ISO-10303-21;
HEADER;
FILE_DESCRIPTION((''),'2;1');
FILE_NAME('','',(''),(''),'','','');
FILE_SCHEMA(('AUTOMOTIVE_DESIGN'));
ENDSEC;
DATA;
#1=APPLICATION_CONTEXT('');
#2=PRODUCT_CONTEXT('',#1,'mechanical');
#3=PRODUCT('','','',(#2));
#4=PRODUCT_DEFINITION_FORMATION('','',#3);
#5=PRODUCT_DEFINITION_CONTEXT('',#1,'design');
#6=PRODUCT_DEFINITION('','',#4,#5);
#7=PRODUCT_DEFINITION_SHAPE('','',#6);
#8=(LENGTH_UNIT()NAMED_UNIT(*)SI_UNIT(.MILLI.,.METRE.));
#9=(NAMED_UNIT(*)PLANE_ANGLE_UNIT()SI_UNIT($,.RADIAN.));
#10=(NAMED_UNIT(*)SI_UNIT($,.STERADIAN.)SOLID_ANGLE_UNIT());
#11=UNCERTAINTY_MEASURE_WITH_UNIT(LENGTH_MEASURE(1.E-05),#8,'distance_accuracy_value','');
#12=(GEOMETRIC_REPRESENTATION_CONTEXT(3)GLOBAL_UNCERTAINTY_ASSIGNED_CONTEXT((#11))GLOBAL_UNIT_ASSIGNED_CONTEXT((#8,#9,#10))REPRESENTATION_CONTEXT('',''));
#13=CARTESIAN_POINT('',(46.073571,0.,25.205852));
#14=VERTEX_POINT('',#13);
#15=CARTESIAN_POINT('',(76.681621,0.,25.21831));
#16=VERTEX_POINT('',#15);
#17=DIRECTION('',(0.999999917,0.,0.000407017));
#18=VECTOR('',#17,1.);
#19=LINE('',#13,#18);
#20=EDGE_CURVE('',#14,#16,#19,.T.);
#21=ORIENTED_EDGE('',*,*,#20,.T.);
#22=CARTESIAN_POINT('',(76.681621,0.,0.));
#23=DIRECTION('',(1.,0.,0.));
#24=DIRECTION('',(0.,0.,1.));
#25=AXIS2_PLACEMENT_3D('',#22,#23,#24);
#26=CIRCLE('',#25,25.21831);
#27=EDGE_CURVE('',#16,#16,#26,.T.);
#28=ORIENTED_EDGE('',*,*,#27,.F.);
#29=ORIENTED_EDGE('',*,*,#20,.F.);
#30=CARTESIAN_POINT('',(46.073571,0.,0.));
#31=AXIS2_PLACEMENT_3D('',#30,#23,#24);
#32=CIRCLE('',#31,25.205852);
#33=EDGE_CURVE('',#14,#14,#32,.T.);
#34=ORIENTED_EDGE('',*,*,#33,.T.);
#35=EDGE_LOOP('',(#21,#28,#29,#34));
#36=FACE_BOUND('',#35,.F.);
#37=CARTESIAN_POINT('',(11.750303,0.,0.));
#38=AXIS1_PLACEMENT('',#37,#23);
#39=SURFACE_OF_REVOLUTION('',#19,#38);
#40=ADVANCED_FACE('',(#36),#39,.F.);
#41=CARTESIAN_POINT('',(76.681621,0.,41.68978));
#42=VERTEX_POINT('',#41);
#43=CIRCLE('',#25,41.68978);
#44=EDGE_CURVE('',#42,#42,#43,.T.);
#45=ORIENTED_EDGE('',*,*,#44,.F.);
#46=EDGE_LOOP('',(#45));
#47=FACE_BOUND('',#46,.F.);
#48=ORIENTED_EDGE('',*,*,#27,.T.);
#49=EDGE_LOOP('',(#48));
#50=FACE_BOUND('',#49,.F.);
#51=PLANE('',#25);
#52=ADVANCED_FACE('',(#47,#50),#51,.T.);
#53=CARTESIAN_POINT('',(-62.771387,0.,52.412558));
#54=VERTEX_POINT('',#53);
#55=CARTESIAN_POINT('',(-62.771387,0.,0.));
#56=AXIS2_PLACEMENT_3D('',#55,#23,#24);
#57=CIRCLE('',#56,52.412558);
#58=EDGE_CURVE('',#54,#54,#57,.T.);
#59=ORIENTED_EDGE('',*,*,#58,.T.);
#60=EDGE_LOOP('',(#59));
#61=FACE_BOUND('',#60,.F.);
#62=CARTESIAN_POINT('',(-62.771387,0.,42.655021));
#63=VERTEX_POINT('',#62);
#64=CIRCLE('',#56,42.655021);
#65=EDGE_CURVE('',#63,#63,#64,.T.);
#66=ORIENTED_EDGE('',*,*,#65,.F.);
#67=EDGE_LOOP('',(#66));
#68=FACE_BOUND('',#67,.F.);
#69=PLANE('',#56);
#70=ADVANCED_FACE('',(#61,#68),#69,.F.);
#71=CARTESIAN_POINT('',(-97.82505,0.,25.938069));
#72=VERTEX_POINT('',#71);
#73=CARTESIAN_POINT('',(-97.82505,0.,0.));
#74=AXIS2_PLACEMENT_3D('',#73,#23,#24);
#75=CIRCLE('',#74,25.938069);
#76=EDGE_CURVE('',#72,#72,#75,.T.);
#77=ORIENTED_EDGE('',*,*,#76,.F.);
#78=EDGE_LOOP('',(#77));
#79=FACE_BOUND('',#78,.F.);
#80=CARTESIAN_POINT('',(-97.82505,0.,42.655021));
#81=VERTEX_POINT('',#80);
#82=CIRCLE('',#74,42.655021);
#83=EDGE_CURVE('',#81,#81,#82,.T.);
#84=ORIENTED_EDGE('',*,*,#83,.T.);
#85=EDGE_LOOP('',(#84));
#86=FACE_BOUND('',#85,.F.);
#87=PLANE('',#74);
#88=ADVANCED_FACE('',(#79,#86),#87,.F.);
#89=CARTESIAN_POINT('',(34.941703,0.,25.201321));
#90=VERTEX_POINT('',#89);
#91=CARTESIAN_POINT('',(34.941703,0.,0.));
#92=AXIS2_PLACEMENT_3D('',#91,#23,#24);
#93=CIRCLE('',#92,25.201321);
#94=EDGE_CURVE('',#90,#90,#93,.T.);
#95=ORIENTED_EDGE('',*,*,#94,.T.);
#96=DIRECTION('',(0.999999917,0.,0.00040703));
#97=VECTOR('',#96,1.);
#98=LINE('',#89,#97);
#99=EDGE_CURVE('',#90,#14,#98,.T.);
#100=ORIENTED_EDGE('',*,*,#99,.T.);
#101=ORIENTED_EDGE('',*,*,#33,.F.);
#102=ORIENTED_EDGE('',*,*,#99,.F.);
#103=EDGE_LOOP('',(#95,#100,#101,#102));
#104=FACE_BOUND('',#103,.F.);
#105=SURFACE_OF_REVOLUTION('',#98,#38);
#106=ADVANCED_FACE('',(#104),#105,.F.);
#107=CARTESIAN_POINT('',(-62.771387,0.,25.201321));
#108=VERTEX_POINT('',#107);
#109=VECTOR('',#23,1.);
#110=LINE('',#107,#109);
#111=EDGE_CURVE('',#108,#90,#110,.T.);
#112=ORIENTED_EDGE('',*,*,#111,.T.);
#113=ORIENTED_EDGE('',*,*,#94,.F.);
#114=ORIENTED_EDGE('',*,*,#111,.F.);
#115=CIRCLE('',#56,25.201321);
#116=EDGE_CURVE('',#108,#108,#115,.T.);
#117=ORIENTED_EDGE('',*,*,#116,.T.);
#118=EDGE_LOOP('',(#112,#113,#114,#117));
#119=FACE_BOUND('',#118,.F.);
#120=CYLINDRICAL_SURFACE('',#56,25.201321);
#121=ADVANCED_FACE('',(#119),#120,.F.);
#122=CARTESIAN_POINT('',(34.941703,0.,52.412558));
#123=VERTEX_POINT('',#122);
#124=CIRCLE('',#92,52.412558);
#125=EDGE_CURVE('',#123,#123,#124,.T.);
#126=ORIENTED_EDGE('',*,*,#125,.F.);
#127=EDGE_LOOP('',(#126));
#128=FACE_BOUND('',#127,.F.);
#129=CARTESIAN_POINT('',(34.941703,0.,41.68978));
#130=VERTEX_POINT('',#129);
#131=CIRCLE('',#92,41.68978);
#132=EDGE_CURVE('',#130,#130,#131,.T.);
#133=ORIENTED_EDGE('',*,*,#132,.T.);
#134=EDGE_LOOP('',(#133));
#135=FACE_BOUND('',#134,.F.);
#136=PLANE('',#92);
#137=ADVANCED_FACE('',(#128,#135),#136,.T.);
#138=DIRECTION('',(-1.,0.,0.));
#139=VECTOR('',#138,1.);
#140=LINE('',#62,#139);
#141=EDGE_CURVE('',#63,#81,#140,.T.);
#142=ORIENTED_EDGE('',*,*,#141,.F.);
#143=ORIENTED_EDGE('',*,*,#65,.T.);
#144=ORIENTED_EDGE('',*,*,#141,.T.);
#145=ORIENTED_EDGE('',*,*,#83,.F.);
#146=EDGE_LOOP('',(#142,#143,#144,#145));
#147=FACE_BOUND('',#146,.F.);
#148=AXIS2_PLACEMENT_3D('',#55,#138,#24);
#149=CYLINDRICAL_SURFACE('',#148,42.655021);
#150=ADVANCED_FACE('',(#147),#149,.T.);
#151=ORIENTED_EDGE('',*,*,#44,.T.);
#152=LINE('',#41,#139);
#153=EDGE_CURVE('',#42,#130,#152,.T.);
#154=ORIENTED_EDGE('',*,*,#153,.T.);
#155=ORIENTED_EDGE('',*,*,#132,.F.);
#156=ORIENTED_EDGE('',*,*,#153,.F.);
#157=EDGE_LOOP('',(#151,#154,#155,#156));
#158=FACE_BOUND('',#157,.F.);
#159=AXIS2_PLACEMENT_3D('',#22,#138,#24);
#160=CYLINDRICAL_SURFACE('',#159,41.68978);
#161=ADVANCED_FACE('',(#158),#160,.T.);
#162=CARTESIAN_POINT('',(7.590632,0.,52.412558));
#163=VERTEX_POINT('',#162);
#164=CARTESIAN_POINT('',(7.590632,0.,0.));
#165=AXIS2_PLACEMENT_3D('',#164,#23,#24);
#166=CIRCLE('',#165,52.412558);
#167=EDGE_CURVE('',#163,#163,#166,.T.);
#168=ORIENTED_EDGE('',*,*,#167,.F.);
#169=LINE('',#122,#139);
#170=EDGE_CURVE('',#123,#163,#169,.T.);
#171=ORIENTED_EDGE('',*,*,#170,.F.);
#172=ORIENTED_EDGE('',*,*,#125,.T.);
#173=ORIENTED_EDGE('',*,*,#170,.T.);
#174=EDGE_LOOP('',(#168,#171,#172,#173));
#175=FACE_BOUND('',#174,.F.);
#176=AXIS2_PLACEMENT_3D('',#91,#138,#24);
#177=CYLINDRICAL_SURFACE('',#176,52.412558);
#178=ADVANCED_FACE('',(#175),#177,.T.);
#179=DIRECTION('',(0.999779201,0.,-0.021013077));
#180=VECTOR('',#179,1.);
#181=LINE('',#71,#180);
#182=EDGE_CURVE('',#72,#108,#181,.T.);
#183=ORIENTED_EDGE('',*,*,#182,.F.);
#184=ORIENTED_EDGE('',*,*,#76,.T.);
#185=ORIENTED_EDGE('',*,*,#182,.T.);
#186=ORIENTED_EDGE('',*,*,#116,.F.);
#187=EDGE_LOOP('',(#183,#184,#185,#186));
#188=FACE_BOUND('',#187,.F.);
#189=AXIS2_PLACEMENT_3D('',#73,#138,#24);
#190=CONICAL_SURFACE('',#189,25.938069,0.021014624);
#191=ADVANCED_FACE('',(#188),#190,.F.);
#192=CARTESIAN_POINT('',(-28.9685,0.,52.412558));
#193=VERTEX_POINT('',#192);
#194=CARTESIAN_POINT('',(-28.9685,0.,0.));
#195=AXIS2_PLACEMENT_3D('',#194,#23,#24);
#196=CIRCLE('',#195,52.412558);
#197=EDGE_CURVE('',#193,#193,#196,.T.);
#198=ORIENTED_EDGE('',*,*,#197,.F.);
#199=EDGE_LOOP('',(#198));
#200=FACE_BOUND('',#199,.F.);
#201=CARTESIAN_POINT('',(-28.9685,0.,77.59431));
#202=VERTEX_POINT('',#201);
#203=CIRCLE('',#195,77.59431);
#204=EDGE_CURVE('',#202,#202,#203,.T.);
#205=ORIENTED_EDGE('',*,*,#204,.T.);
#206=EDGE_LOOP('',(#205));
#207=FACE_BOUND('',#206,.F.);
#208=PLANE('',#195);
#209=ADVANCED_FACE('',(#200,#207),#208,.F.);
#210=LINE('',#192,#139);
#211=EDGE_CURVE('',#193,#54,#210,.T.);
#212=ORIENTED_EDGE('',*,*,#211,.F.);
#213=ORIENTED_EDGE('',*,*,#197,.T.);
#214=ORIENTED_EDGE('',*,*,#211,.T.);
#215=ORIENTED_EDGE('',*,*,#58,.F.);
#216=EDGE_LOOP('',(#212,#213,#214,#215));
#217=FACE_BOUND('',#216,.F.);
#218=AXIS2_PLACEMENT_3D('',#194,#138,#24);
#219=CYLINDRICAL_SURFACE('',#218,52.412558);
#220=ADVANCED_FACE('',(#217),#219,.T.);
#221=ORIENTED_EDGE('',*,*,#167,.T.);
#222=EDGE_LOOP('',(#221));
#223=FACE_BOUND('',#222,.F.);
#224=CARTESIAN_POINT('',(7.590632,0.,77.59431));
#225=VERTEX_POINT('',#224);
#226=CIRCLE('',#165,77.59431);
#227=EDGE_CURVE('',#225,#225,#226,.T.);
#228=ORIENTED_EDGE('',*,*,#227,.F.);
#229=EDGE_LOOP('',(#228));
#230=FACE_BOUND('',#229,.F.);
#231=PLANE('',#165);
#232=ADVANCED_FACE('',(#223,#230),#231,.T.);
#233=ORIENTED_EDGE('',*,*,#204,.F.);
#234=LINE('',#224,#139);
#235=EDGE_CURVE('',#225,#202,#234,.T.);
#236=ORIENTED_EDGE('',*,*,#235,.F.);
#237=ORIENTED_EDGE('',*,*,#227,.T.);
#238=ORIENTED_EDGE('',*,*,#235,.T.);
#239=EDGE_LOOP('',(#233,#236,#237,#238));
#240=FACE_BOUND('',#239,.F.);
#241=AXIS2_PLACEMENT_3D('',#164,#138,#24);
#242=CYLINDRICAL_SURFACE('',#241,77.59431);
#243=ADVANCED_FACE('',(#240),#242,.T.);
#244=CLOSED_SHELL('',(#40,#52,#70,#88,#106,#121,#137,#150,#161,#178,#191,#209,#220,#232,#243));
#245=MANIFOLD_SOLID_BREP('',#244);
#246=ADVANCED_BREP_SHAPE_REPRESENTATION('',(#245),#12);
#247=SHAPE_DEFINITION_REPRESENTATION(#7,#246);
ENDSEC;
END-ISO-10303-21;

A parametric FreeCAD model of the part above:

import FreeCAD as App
import Part
import Sketcher
from FreeCAD import Vector


def add_polygon(sketch, points):
    """Adds a closed chain of lines whose ends are joined by coincident constraints."""
    first, n = sketch.GeometryCount, len(points)
    for a, b in zip(points, points[1:] + points[:1]):
        sketch.addGeometry(Part.LineSegment(App.Vector(*a, 0), App.Vector(*b, 0)), False)
    for i in range(n):
        sketch.addConstraint(Sketcher.Constraint("Coincident", first + i, 2, first + (i + 1) % n, 1))

doc = App.newDocument("Part")
params = doc.addObject("Spreadsheet::Sheet", "Params")
for row, (alias, value) in enumerate([
    ("revolution_angle", "360 deg"),
], start=1):
    params.set(f"A{row}", alias)
    params.set(f"B{row}", "=" + value)
    params.setAlias(f"B{row}", alias)

body = doc.addObject("PartDesign::Body", "Body")

# Sketch on XZ plane
sketch1 = doc.addObject("Sketcher::SketchObject", "Sketch")
body.addObject(sketch1)
sketch1.AttachmentSupport = (doc.XZ_Plane, [""])
sketch1.MapMode = "FlatFace"
add_polygon(sketch1, [(-98, 26), (-63, 25), (35, 25), (46, 25), (77, 25), (77, 42), (35, 42), (35, 52), (8, 52), (8, 78), (-29, 78), (-29, 52), (-63, 52), (-63, 43), (-98, 43)])  # lines 0-14
sketch1.addConstraint([
    Sketcher.Constraint("Horizontal", 1),
    Sketcher.Constraint("Vertical", 4),
    Sketcher.Constraint("Horizontal", 5),
    Sketcher.Constraint("Vertical", 6),
    Sketcher.Constraint("Horizontal", 7),
    Sketcher.Constraint("Vertical", 8),
    Sketcher.Constraint("Horizontal", 9),
    Sketcher.Constraint("Vertical", 10),
    Sketcher.Constraint("Horizontal", 11),
    Sketcher.Constraint("Vertical", 12),
    Sketcher.Constraint("Horizontal", 13),
    Sketcher.Constraint("Vertical", 14),
    Sketcher.Constraint("Parallel", 2, 3),
    Sketcher.Constraint("Horizontal", 7, 2, 10, 2),
    Sketcher.Constraint("Vertical", 1, 2, 5, 2),
    Sketcher.Constraint("Vertical", 0, 2, 11, 2),
    Sketcher.Constraint("DistanceX", 1, 1, 1, 2, 97.71309),
    Sketcher.Constraint("DistanceX", 5, 2, 5, 1, 41.739918),
    Sketcher.Constraint("DistanceX", 7, 2, 7, 1, 27.351071),
    Sketcher.Constraint("DistanceX", 9, 2, 9, 1, 36.559132),
    Sketcher.Constraint("DistanceY", 4, 1, 4, 2, 16.47147),
    Sketcher.Constraint("DistanceY", 8, 1, 8, 2, 25.181752),
    Sketcher.Constraint("DistanceY", 14, 2, 14, 1, 16.716952),
    Sketcher.Constraint("DistanceX", 9, 2, -1, 1, 28.9685),
    Sketcher.Constraint("DistanceY", 0, 2, 12, 2, 17.4537),
    Sketcher.Constraint("Distance", 2, 11.131869),
    Sketcher.Constraint("DistanceX", 13, 2, 13, 1, 35.053663),
    Sketcher.Constraint("DistanceY", 6, 1, 6, 2, 10.722778),
    Sketcher.Constraint("DistanceY", 12, 2, 12, 1, 9.757537),
    Sketcher.Constraint("DistanceY", -1, 1, 0, 2, 25.201321),
])
revolution = doc.addObject("PartDesign::Revolution", "Revolution")
body.addObject(revolution)
revolution.Profile = sketch1
revolution.ReferenceAxis = (sketch1, ["H_Axis"])
revolution.setExpression("Angle", "Params.revolution_angle")

doc.recompute()
